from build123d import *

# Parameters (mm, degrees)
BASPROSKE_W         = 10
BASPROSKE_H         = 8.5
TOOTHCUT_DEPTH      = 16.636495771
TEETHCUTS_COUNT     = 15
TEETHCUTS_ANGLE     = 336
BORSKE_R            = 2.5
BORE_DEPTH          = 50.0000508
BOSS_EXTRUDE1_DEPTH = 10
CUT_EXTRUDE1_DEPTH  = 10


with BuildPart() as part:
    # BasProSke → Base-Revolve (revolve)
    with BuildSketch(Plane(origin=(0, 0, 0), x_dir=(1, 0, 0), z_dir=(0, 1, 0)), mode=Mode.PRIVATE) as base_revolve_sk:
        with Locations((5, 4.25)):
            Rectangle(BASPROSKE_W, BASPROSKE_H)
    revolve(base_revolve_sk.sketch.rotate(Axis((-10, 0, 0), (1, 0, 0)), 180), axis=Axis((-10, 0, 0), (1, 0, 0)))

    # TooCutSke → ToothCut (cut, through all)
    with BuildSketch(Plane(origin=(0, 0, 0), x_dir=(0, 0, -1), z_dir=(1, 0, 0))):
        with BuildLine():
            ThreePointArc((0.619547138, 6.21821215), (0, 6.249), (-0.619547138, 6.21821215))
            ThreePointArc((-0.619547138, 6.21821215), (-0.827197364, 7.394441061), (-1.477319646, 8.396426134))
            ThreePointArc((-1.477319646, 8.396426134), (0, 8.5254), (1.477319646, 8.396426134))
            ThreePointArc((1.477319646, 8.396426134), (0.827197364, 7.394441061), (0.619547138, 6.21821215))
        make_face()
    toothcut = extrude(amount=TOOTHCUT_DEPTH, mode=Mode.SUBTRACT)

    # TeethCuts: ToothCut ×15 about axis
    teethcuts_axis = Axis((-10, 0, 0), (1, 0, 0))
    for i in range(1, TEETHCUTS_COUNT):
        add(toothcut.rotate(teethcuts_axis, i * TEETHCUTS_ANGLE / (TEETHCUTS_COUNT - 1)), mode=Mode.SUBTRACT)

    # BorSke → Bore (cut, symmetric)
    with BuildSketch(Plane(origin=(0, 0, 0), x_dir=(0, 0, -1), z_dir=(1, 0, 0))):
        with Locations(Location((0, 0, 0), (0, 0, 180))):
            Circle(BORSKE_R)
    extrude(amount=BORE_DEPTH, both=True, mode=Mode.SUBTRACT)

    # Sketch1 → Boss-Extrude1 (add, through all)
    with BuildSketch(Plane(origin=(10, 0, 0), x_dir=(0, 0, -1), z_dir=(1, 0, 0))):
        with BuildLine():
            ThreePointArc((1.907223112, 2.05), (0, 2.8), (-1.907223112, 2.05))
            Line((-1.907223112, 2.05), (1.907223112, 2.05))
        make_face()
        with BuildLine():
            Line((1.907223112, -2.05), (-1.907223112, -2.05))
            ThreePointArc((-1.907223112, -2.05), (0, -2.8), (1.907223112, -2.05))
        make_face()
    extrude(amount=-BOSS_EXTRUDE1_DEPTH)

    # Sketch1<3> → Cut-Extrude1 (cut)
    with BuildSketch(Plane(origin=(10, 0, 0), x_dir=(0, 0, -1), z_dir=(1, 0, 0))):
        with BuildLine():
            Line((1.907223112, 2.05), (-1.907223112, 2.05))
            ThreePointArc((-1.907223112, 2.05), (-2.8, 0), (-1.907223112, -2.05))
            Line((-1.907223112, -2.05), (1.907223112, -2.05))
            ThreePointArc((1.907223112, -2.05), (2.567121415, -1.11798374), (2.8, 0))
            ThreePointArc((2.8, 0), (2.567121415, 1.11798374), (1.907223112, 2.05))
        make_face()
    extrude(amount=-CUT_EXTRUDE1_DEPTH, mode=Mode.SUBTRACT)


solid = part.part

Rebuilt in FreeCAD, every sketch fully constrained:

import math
import FreeCAD as App
import Part
import Sketcher


def add_polygon(sketch, points):
    """Adds a closed chain of lines whose ends are joined by coincident constraints."""
    first, n = sketch.GeometryCount, len(points)
    for a, b in zip(points, points[1:] + points[:1]):
        sketch.addGeometry(Part.LineSegment(App.Vector(*a, 0), App.Vector(*b, 0)), False)
    for i in range(n):
        sketch.addConstraint(Sketcher.Constraint("Coincident", first + i, 2, first + (i + 1) % n, 1))

doc = App.newDocument("Part")
body = doc.addObject("PartDesign::Body", "Body")

sketch1 = body.newObject("Sketcher::SketchObject", "Sketch")
sketch1.AttachmentSupport = (doc.getObject("XZ_Plane"), [""])
sketch1.MapMode = "FlatFace"
add_polygon(sketch1, [(0, -8), (0, 0), (10, 0), (10, -8)])
sketch1.addConstraint([
    Sketcher.Constraint("Vertical", 0),
    Sketcher.Constraint("Horizontal", 1),
    Sketcher.Constraint("Vertical", 2),
    Sketcher.Constraint("Horizontal", 3),
    Sketcher.Constraint("Coincident", 0, 2, -1, 1),
    Sketcher.Constraint("DistanceX", 1, 1, 1, 2, 10.0),
    Sketcher.Constraint("DistanceY", 0, 1, 0, 2, 8.5),
])
revolution = body.newObject("PartDesign::Revolution", "Revolution")
revolution.Profile = sketch1
revolution.ReferenceAxis = (sketch1, ["H_Axis"])
revolution.Angle = 360

sketch2 = body.newObject("Sketcher::SketchObject", "Sketch001")
sketch2.AttachmentSupport = (doc.getObject("YZ_Plane"), [""])
sketch2.MapMode = "FlatFace"
sketch2.addGeometry([
    Part.ArcOfCircle(Part.Circle(App.Vector(0, 0, 0), App.Vector(0, 0, 1), 6.2), math.radians(-5.69), math.radians(5.69)),
    Part.ArcOfCircle(Part.Circle(App.Vector(6.3, -3.6, 0), App.Vector(0, 0, 1), 3), math.radians(46), math.radians(91)),
    Part.ArcOfCircle(Part.Circle(App.Vector(0, 0, 0), App.Vector(0, 0, 1), 8.5), math.radians(-9.98), math.radians(9.98)),
    Part.ArcOfCircle(Part.Circle(App.Vector(6.3, 3.6, 0), App.Vector(0, 0, 1), 3), math.radians(-91), math.radians(-46)),
], False)
sketch2.addConstraint([
    Sketcher.Constraint("Coincident", 0, 1, 1, 2),
    Sketcher.Constraint("Coincident", 1, 1, 2, 1),
    Sketcher.Constraint("Coincident", 2, 2, 3, 2),
    Sketcher.Constraint("Coincident", 3, 1, 0, 2),
    Sketcher.Constraint("Coincident", 0, 3, -1, 1),
    Sketcher.Constraint("Coincident", 2, 3, -1, 1),
    Sketcher.Constraint("Equal", 1, 3),
    Sketcher.Constraint("Symmetric", 1, 3, 3, 3, -1),
    Sketcher.Constraint("Radius", 1, 3.0),
    Sketcher.Constraint("Radius", 0, 6.249),
    Sketcher.Constraint("Radius", 2, 8.5254),
    Sketcher.Constraint("DistanceX", 0, 1, 1, 3, 0.077001),
    Sketcher.Constraint("DistanceY", 1, 3, -1, 1, 3.618559),
])
pocket1 = body.newObject("PartDesign::Pocket", "Pocket")
pocket1.Profile = sketch2
pocket1.Type = "ThroughAll"
pocket1.Reversed = True
doc.recompute()

polarpattern = body.newObject("PartDesign::PolarPattern", "PolarPattern")
polarpattern.Originals = [pocket1]
polarpattern.Axis = (doc.getObject("X_Axis"), [""])
polarpattern.Angle = 360
polarpattern.Occurrences = 15
body.Tip = polarpattern

sketch3 = body.newObject("Sketcher::SketchObject", "Sketch002")
sketch3.AttachmentSupport = (doc.getObject("YZ_Plane"), [""])
sketch3.MapMode = "FlatFace"
sketch3.addGeometry(Part.Circle(App.Vector(0, 0, 0), App.Vector(0, 0, 1), 2.5), False)
sketch3.addConstraint([
    Sketcher.Constraint("Coincident", 0, 3, -1, 1),
    Sketcher.Constraint("Diameter", 0, 5.0),
])
pocket2 = body.newObject("PartDesign::Pocket", "Pocket001")
pocket2.Profile = sketch3
pocket2.Length = 100.000102
pocket2.Midplane = True

sketch4 = body.newObject("Sketcher::SketchObject", "Sketch003")
sketch4.AttachmentSupport = (doc.getObject("YZ_Plane"), [""])
sketch4.MapMode = "FlatFace"
sketch4.AttachmentOffset = App.Placement(App.Vector(0, 0, 10), App.Rotation())
sketch4.addGeometry([
    Part.ArcOfCircle(Part.Circle(App.Vector(0, 0, 0), App.Vector(0, 0, 1), 2.8), math.radians(-43), math.radians(43)),
    Part.LineSegment(App.Vector(2, 1.9, 0), App.Vector(2, -1.9, 0)),
    Part.LineSegment(App.Vector(-2, -1.9, 0), App.Vector(-2, 1.9, 0)),
    Part.ArcOfCircle(Part.Circle(App.Vector(0, 0, 0), App.Vector(0, 0, 1), 2.8), math.radians(137), math.radians(223)),
], False)
sketch4.addConstraint([
    Sketcher.Constraint("Coincident", 0, 1, 1, 2),
    Sketcher.Constraint("Coincident", 1, 1, 0, 2),
    Sketcher.Constraint("Coincident", 2, 1, 3, 2),
    Sketcher.Constraint("Coincident", 3, 1, 2, 2),
    Sketcher.Constraint("Vertical", 1),
    Sketcher.Constraint("Vertical", 2),
    Sketcher.Constraint("Coincident", 0, 3, -1, 1),
    Sketcher.Constraint("Coincident", 3, 3, -1, 1),
    Sketcher.Constraint("Equal", 0, 3),
    Sketcher.Constraint("Horizontal", 0, 1, 2, 1),
    Sketcher.Constraint("Radius", 0, 2.8),
    Sketcher.Constraint("DistanceX", 2, 1, 0, 1, 4.1),
])
pad1 = body.newObject("PartDesign::Pad", "Pad")
pad1.Profile = sketch4
pad1.Length = 10
pad1.Reversed = True

sketch5 = body.newObject("Sketcher::SketchObject", "Sketch004")
sketch5.AttachmentSupport = (doc.getObject("YZ_Plane"), [""])
sketch5.MapMode = "FlatFace"
sketch5.AttachmentOffset = App.Placement(App.Vector(0, 0, 10), App.Rotation())
sketch5.addGeometry([
    Part.LineSegment(App.Vector(2, -1.9, 0), App.Vector(2, 1.9, 0)),
    Part.ArcOfCircle(Part.Circle(App.Vector(0, 0, 0), App.Vector(0, 0, 1), 2.8), math.radians(43), math.radians(137)),
    Part.LineSegment(App.Vector(-2, 1.9, 0), App.Vector(-2, -1.9, 0)),
    Part.ArcOfCircle(Part.Circle(App.Vector(0, 0, 0), App.Vector(0, 0, 1), 2.8), math.radians(-137), math.radians(-90)),
    Part.ArcOfCircle(Part.Circle(App.Vector(0, 0, 0), App.Vector(0, 0, 1), 2.8), math.radians(-90), math.radians(-43)),
], False)
sketch5.addConstraint([
    Sketcher.Constraint("Coincident", 0, 2, 1, 1),
    Sketcher.Constraint("Coincident", 1, 2, 2, 1),
    Sketcher.Constraint("Coincident", 2, 2, 3, 1),
    Sketcher.Constraint("Tangent", 3, 2, 4, 1),
    Sketcher.Constraint("Coincident", 4, 2, 0, 1),
    Sketcher.Constraint("Vertical", 0),
    Sketcher.Constraint("Vertical", 2),
    Sketcher.Constraint("Coincident", 1, 3, -1, 1),
    Sketcher.Constraint("Coincident", 3, 3, -1, 1),
    Sketcher.Constraint("Equal", 1, 3),
    Sketcher.Constraint("Equal", 3, 4),
    Sketcher.Constraint("PointOnObject", 3, 2, -2),
    Sketcher.Constraint("Horizontal", 0, 2, 1, 2),
    Sketcher.Constraint("Radius", 1, 2.8),
    Sketcher.Constraint("DistanceX", 1, 2, 0, 2, 4.1),
])
pocket3 = body.newObject("PartDesign::Pocket", "Pocket002")
pocket3.Profile = sketch5
pocket3.Length = 10

doc.recompute()
